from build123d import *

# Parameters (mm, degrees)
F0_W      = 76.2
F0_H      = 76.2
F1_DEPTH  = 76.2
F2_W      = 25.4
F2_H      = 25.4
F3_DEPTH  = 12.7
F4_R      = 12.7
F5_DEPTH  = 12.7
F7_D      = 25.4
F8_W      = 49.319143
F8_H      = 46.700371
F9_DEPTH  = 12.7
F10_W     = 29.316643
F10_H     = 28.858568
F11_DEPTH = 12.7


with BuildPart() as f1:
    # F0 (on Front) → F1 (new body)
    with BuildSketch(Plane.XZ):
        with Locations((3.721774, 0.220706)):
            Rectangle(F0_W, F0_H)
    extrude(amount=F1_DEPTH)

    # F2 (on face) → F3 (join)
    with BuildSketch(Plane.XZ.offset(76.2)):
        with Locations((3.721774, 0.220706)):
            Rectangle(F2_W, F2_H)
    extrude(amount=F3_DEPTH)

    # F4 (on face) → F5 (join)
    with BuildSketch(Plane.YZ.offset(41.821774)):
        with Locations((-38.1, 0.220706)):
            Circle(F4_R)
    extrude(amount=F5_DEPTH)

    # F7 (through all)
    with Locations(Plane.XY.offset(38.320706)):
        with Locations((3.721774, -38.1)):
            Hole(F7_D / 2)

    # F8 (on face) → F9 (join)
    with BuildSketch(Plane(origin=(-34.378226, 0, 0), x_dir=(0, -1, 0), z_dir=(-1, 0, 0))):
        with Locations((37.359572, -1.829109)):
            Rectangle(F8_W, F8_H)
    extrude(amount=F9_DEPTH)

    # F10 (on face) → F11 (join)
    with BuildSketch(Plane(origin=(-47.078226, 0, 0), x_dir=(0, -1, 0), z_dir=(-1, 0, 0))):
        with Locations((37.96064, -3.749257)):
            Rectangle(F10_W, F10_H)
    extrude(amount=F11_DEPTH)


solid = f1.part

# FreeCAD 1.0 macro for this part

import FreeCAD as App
import Part
import Sketcher

V = App.Vector
Q = App.Units.Quantity


def add_polygon(sketch, points):
    """Adds a closed chain of lines whose ends are joined by coincident constraints."""
    first, n = sketch.GeometryCount, len(points)
    for a, b in zip(points, points[1:] + points[:1]):
        sketch.addGeometry(Part.LineSegment(App.Vector(*a, 0), App.Vector(*b, 0)), False)
    for i in range(n):
        sketch.addConstraint(Sketcher.Constraint("Coincident", first + i, 2, first + (i + 1) % n, 1))

doc = App.newDocument("Part")
body = doc.addObject("PartDesign::Body", "Body")

sketch1 = body.newObject("Sketcher::SketchObject", "Sketch")
sketch1.AttachmentSupport = (doc.getObject("XZ_Plane"), [""])
sketch1.MapMode = "FlatFace"
add_polygon(sketch1, [(-34, 38), (-34, -38), (42, -38), (42, 38)])
sketch1.addConstraint([
    Sketcher.Constraint("Vertical", 0),
    Sketcher.Constraint("Horizontal", 1),
    Sketcher.Constraint("Vertical", 2),
    Sketcher.Constraint("Horizontal", 3),
    Sketcher.Constraint("Equal", 3, 0),
    Sketcher.Constraint("DistanceX", 1, 1, 1, 2, Q("3 in")),
    Sketcher.Constraint("DistanceX", 0, 2, -1, 1, Q("34.378226 mm")),
    Sketcher.Constraint("DistanceY", 0, 2, -1, 1, Q("37.879294 mm")),
])
pad1 = body.newObject("PartDesign::Pad", "Pad")
pad1.Profile = sketch1
pad1.Length = Q("3 in")

sketch2 = body.newObject("Sketcher::SketchObject", "Sketch001")
sketch2.AttachmentSupport = (doc.getObject("XZ_Plane"), [""])
sketch2.MapMode = "FlatFace"
sketch2.AttachmentOffset = App.Placement(V(0, 0, 3 * 25.4), App.Rotation())
add_polygon(sketch2, [(-9, 13), (-9, -12), (16, -12), (16, 13)])
sketch2.addConstraint([
    Sketcher.Constraint("Vertical", 0),
    Sketcher.Constraint("Horizontal", 1),
    Sketcher.Constraint("Vertical", 2),
    Sketcher.Constraint("Horizontal", 3),
    Sketcher.Constraint("Equal", 3, 0),
    Sketcher.Constraint("DistanceX", 1, 1, 1, 2, Q("1 in")),
    Sketcher.Constraint("DistanceX", 0, 2, -1, 1, Q("8.978226 mm")),
    Sketcher.Constraint("DistanceY", 0, 2, -1, 1, Q("12.479294 mm")),
])
pad2 = body.newObject("PartDesign::Pad", "Pad001")
pad2.Profile = sketch2
pad2.Length = Q("0.5 in")

sketch3 = body.newObject("Sketcher::SketchObject", "Sketch002")
sketch3.AttachmentSupport = (doc.getObject("YZ_Plane"), [""])
sketch3.MapMode = "FlatFace"
sketch3.AttachmentOffset = App.Placement(V(0, 0, 41.821774), App.Rotation())
sketch3.addGeometry(Part.Circle(V(-38, 0, 0), V(0, 0, 1), 13), False)
sketch3.addConstraint([
    Sketcher.Constraint("Diameter", 0, Q("1 in")),
    Sketcher.Constraint("DistanceX", 0, 3, -1, 1, Q("1.5 in")),
    Sketcher.Constraint("DistanceY", -1, 1, 0, 3, Q("0.220706 mm")),
])
pad3 = body.newObject("PartDesign::Pad", "Pad002")
pad3.Profile = sketch3
pad3.Length = Q("0.5 in")

sketch4 = body.newObject("Sketcher::SketchObject", "Sketch003")
sketch4.AttachmentSupport = (doc.getObject("XY_Plane"), [""])
sketch4.MapMode = "FlatFace"
sketch4.AttachmentOffset = App.Placement(V(0, 0, 38.320706), App.Rotation())
sketch4.addGeometry(Part.Circle(V(4, -38, 0), V(0, 0, 1), 13), False)
sketch4.addConstraint([
    Sketcher.Constraint("Diameter", 0, Q("1 in")),
    Sketcher.Constraint("DistanceY", 0, 3, -1, 1, Q("1.5 in")),
    Sketcher.Constraint("DistanceX", -1, 1, 0, 3, Q("3.721774 mm")),
])
doc.recompute()
hole = body.newObject("PartDesign::Hole", "Hole")
hole.Profile = sketch4
hole.ThreadType = "None"
hole.Diameter = Q("1 in")
hole.DepthType = "ThroughAll"

sketch5 = body.newObject("Sketcher::SketchObject", "Sketch004")
sketch5.AttachmentSupport = (doc.getObject("YZ_Plane"), [""])
sketch5.MapMode = "FlatFace"
sketch5.AttachmentOffset = App.Placement(V(0, 0, -34.378226), App.Rotation())
add_polygon(sketch5, [(-13, 22), (-13, -25), (-62, -25), (-62, 22)])
sketch5.addConstraint([
    Sketcher.Constraint("Vertical", 0),
    Sketcher.Constraint("Horizontal", 1),
    Sketcher.Constraint("Vertical", 2),
    Sketcher.Constraint("Horizontal", 3),
    Sketcher.Constraint("DistanceX", 0, 2, -1, 1, Q("0.5 in")),
    Sketcher.Constraint("DistanceY", 0, 2, 0, 1, Q("46.700371 mm")),
    Sketcher.Constraint("DistanceX", 1, 2, 1, 1, Q("49.319143 mm")),
    Sketcher.Constraint("DistanceY", 0, 2, -1, 1, Q("25.179295 mm")),
])
pad4 = body.newObject("PartDesign::Pad", "Pad003")
pad4.Profile = sketch5
pad4.Length = Q("0.5 in")
pad4.Reversed = True

sketch6 = body.newObject("Sketcher::SketchObject", "Sketch005")
sketch6.AttachmentSupport = (doc.getObject("YZ_Plane"), [""])
sketch6.MapMode = "FlatFace"
sketch6.AttachmentOffset = App.Placement(V(0, 0, -47.078226), App.Rotation())
add_polygon(sketch6, [(-23, 11), (-23, -18), (-53, -18), (-53, 11)])
sketch6.addConstraint([
    Sketcher.Constraint("Vertical", 0),
    Sketcher.Constraint("Horizontal", 1),
    Sketcher.Constraint("Vertical", 2),
    Sketcher.Constraint("Horizontal", 3),
    Sketcher.Constraint("DistanceX", 1, 2, 1, 1, Q("29.316643 mm")),
    Sketcher.Constraint("DistanceY", 0, 2, 0, 1, Q("28.858568 mm")),
    Sketcher.Constraint("DistanceX", 0, 2, -1, 1, Q("23.302318 mm")),
    Sketcher.Constraint("DistanceY", 0, 2, -1, 1, Q("18.178541 mm")),
])
pad5 = body.newObject("PartDesign::Pad", "Pad004")
pad5.Profile = sketch6
pad5.Length = Q("0.5 in")
pad5.Reversed = True

doc.recompute()
